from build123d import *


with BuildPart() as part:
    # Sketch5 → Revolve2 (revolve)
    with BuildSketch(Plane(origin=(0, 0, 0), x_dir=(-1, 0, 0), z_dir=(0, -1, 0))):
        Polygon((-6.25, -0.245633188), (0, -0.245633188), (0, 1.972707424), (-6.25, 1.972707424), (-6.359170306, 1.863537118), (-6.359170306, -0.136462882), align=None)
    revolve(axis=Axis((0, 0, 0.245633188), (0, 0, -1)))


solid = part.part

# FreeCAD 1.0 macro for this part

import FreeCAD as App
import Part
import Sketcher

doc = App.newDocument("Part")
body = doc.addObject("PartDesign::Body", "Body")

# Sketch on XZ plane
sketch1 = body.newObject("Sketcher::SketchObject", "Sketch")
sketch1.AttachmentSupport = (doc.getObject("XZ_Plane"), [""])
sketch1.MapMode = "FlatFace"
sketch1.addGeometry([
    Part.LineSegment(App.Vector(6.25, 0.245633, 0), App.Vector(0, 0.245633, 0)),  # 0
    Part.LineSegment(App.Vector(0, 0.245633, 0), App.Vector(0, -1.972707, 0)),  # 1
    Part.LineSegment(App.Vector(0, -1.972707, 0), App.Vector(6.25, -1.972707, 0)),  # 2
    Part.LineSegment(App.Vector(6.25, -1.972707, 0), App.Vector(6.35917, -1.863537, 0)),  # 3
    Part.LineSegment(App.Vector(6.35917, -1.863537, 0), App.Vector(6.35917, 0.136463, 0)),  # 4
    Part.LineSegment(App.Vector(6.35917, 0.136463, 0), App.Vector(6.25, 0.245633, 0)),  # 5
], False)
sketch1.addConstraint([
    Sketcher.Constraint("Coincident", 0, 2, 1, 1),
    Sketcher.Constraint("Coincident", 1, 2, 2, 1),
    Sketcher.Constraint("Coincident", 2, 2, 3, 1),
    Sketcher.Constraint("Coincident", 3, 2, 4, 1),
    Sketcher.Constraint("Coincident", 4, 2, 5, 1),
    Sketcher.Constraint("Coincident", 5, 2, 0, 1),
    Sketcher.Constraint("Horizontal", 0),
    Sketcher.Constraint("Vertical", 1),
    Sketcher.Constraint("Horizontal", 2),
    Sketcher.Constraint("Vertical", 4),
    Sketcher.Constraint("PointOnObject", 0, 2, -2),
    Sketcher.Constraint("Perpendicular", 3, 5),
    Sketcher.Constraint("Vertical", 2, 2, 5, 2),
    Sketcher.Constraint("Equal", 3, 5),
    Sketcher.Constraint("DistanceY", 4, 1, 4, 2, 2.0),
    Sketcher.Constraint("DistanceX", 0, 2, 0, 1, 6.25),
    Sketcher.Constraint("DistanceY", 1, 2, 1, 1, 2.218341),
    Sketcher.Constraint("DistanceY", -1, 1, 0, 2, 0.245633),
])
revolution = body.newObject("PartDesign::Revolution", "Revolution")
revolution.Profile = sketch1
revolution.ReferenceAxis = (sketch1, ["V_Axis"])
revolution.Angle = 360

doc.recompute()
